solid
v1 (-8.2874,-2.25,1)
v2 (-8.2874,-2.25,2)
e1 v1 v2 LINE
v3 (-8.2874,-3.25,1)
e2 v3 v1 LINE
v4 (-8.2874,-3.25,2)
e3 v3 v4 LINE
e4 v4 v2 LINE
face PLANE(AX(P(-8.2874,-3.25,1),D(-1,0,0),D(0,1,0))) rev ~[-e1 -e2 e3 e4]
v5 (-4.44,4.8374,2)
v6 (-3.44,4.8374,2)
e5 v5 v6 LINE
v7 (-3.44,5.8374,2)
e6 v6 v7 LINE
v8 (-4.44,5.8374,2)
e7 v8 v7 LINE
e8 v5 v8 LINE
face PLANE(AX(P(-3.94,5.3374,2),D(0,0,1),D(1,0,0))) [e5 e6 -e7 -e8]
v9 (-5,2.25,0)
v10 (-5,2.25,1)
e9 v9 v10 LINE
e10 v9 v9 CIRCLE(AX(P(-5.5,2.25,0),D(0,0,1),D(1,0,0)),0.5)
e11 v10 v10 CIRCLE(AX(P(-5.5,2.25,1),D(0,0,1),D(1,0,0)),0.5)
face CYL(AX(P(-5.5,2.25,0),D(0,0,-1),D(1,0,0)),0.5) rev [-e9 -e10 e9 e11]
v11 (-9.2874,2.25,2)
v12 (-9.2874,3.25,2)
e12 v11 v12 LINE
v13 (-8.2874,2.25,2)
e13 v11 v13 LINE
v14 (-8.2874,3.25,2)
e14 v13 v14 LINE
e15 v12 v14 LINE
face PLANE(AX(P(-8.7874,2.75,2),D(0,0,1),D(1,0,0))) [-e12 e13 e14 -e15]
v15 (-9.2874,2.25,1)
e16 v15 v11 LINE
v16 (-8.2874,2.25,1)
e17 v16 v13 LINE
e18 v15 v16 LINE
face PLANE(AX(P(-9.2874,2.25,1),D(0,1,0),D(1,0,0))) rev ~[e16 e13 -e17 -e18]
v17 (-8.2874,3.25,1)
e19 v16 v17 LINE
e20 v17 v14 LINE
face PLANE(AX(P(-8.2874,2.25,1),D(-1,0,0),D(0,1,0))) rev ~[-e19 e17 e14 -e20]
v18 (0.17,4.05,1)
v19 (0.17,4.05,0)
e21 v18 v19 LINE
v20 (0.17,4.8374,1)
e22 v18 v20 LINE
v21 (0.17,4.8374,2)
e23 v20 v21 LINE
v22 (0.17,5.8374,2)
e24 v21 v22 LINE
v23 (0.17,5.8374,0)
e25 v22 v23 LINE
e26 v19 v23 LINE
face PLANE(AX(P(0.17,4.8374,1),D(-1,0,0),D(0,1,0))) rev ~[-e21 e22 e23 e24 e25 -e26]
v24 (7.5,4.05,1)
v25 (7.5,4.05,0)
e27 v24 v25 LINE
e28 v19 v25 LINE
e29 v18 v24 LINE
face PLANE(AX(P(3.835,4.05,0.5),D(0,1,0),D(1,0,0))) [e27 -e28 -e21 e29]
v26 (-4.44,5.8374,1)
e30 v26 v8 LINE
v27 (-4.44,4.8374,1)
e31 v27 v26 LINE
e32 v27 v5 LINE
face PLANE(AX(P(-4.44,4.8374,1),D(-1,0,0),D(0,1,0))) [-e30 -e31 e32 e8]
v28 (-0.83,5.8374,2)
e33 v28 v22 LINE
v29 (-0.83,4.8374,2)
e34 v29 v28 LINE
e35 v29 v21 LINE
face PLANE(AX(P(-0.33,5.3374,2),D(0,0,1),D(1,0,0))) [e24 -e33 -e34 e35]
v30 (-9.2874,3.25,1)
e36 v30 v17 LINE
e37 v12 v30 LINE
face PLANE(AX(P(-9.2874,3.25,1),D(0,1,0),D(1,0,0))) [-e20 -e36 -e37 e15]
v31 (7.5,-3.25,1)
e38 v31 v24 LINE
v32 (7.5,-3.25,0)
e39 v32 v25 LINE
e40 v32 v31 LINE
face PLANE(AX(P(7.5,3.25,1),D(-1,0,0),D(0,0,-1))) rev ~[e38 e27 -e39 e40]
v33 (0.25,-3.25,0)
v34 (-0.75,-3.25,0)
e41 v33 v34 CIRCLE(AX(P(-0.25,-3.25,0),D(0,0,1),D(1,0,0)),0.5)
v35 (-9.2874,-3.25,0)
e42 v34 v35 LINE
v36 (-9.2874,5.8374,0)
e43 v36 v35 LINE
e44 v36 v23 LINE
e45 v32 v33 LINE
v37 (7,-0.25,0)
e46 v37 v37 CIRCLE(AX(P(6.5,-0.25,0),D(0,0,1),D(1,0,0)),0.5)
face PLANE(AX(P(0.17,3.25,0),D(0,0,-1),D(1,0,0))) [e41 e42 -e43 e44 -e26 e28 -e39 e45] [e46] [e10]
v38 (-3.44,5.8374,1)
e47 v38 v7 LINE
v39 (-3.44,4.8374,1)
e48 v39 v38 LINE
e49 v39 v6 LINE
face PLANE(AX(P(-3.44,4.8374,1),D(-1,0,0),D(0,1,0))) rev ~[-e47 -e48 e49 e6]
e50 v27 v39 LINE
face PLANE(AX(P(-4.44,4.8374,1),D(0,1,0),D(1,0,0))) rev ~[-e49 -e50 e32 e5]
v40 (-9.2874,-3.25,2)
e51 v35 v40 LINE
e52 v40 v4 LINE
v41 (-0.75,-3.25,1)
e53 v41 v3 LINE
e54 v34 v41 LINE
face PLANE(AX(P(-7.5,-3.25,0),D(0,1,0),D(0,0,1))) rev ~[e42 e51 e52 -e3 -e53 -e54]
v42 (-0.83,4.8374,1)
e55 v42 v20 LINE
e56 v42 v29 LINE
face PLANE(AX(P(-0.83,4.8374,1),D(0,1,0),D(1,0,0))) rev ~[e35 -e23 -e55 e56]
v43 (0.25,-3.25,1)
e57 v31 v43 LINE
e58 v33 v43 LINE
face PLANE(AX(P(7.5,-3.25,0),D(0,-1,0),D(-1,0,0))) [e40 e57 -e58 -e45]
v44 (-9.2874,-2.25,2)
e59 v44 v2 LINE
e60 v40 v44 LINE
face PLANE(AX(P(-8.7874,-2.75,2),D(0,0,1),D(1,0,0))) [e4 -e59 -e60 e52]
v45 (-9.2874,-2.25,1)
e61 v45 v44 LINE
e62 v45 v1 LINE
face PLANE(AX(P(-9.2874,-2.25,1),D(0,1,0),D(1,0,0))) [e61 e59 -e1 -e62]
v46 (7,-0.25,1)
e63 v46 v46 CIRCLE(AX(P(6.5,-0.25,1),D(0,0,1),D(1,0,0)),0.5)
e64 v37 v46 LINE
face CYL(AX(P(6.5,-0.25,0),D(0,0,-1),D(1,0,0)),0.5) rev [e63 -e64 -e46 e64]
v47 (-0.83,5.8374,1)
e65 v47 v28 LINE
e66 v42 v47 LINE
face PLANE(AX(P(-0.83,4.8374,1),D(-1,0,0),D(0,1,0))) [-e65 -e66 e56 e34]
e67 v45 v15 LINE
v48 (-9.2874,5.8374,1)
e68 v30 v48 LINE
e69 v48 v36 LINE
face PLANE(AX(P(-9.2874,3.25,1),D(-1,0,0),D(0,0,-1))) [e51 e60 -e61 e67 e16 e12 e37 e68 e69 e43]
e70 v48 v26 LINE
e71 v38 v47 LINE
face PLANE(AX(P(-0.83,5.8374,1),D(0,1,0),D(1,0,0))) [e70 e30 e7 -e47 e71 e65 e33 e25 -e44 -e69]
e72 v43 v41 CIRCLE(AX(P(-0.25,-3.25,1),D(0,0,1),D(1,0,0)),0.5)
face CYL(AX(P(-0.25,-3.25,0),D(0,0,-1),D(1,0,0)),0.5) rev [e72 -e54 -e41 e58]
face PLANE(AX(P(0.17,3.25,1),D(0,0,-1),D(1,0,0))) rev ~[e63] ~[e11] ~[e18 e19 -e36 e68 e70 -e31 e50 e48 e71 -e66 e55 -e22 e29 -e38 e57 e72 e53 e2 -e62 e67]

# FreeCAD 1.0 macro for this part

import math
import FreeCAD as App
import Part
import Sketcher

V = App.Vector

doc = App.newDocument("Part")
body = doc.addObject("PartDesign::Body", "Body")

sketch1 = body.newObject("Sketcher::SketchObject", "Sketch")
sketch1.AttachmentSupport = (doc.getObject("XY_Plane"), [""])
sketch1.MapMode = "FlatFace"
sketch1.addGeometry(Part.LineSegment(V(-7.5, -3.25, 0), V(-0.75, -3.25, 0)), False)
sketch1.addGeometry(Part.ArcOfCircle(Part.Circle(V(-0.25, -3.25, 0), V(0, 0, 1), 0.5), math.radians(0), math.radians(180)), False)
sketch1.addGeometry(Part.LineSegment(V(0.25, -3.25, 0), V(7.5, -3.25, 0)), False)
sketch1.addGeometry(Part.LineSegment(V(7.5, -3.25, 0), V(7.5, 3.25, 0)), False)
sketch1.addGeometry(Part.LineSegment(V(7.5, 3.25, 0), V(-7.5, 3.25, 0)), False)
sketch1.addGeometry(Part.LineSegment(V(-7.5, 3.25, 0), V(-7.5, -3.25, 0)), False)
sketch1.addGeometry(Part.Circle(V(6.5, -0.25, 0), V(0, 0, 1), 0.5), False)
sketch1.addGeometry(Part.Circle(V(-5.5, 2.25, 0), V(0, 0, 1), 0.5), False)
sketch1.addConstraint(Sketcher.Constraint("Coincident", 0, 2, 1, 2))
sketch1.addConstraint(Sketcher.Constraint("Coincident", 1, 1, 2, 1))
sketch1.addConstraint(Sketcher.Constraint("Coincident", 2, 2, 3, 1))
sketch1.addConstraint(Sketcher.Constraint("Coincident", 3, 2, 4, 1))
sketch1.addConstraint(Sketcher.Constraint("Coincident", 4, 2, 5, 1))
sketch1.addConstraint(Sketcher.Constraint("Coincident", 5, 2, 0, 1))
sketch1.addConstraint(Sketcher.Constraint("Horizontal", 0))
sketch1.addConstraint(Sketcher.Constraint("Horizontal", 2))
sketch1.addConstraint(Sketcher.Constraint("Vertical", 3))
sketch1.addConstraint(Sketcher.Constraint("Horizontal", 4))
sketch1.addConstraint(Sketcher.Constraint("Vertical", 5))
sketch1.addConstraint(Sketcher.Constraint("Equal", 1, 6))
sketch1.addConstraint(Sketcher.Constraint("Equal", 6, 7))
sketch1.addConstraint(Sketcher.Constraint("Symmetric", 2, 2, 4, 2, -1, 1))
sketch1.addConstraint(Sketcher.Constraint("Horizontal", 1, 3, 0, 2))
sketch1.addConstraint(Sketcher.Constraint("Horizontal", 0, 2, 1, 1))
sketch1.addConstraint(Sketcher.Constraint("Diameter", 6, 1.0))
sketch1.addConstraint(Sketcher.Constraint("DistanceX", 4, 2, 4, 1, 15.0))
sketch1.addConstraint(Sketcher.Constraint("DistanceY", 3, 1, 3, 2, 6.5))
sketch1.addConstraint(Sketcher.Constraint("DistanceY", 1, 3, 6, 3, 3.0))
sketch1.addConstraint(Sketcher.Constraint("DistanceX", 7, 3, 6, 3, 12.0))
sketch1.addConstraint(Sketcher.Constraint("DistanceX", 6, 3, 2, 2, 1.0))
sketch1.addConstraint(Sketcher.Constraint("DistanceY", 7, 3, 4, 2, 1.0))
sketch1.addConstraint(Sketcher.Constraint("DistanceX", 0, 1, 0, 2, 6.75))
pad1 = body.newObject("PartDesign::Pad", "Pad")
pad1.Profile = sketch1
pad1.Length = 1

sketch2 = body.newObject("Sketcher::SketchObject", "Sketch001")
sketch2.AttachmentSupport = (doc.getObject("YZ_Plane"), [""])
sketch2.MapMode = "FlatFace"
sketch2.AttachmentOffset = App.Placement(V(0, 0, -7.5), App.Rotation())
sketch2.addGeometry(Part.LineSegment(V(3.25, 0, 0), V(-3.25, 0, 0)), False)
sketch2.addGeometry(Part.LineSegment(V(-3.25, 0, 0), V(-3.25, 1, 0)), False)
sketch2.addGeometry(Part.LineSegment(V(-3.25, 1, 0), V(3.25, 1, 0)), False)
sketch2.addGeometry(Part.LineSegment(V(3.25, 1, 0), V(3.25, 0, 0)), False)
sketch2.addConstraint(Sketcher.Constraint("Coincident", 0, 2, 1, 1))
sketch2.addConstraint(Sketcher.Constraint("Coincident", 1, 2, 2, 1))
sketch2.addConstraint(Sketcher.Constraint("Coincident", 2, 2, 3, 1))
sketch2.addConstraint(Sketcher.Constraint("Coincident", 3, 2, 0, 1))
sketch2.addConstraint(Sketcher.Constraint("Horizontal", 0))
sketch2.addConstraint(Sketcher.Constraint("Vertical", 1))
sketch2.addConstraint(Sketcher.Constraint("Horizontal", 2))
sketch2.addConstraint(Sketcher.Constraint("Vertical", 3))
sketch2.addConstraint(Sketcher.Constraint("Symmetric", 0, 2, 3, 2, -1, 1))
sketch2.addConstraint(Sketcher.Constraint("DistanceY", 1, 1, 1, 2, 1.0))
sketch2.addConstraint(Sketcher.Constraint("DistanceX", 0, 2, 0, 1, 6.5))
pad2 = body.newObject("PartDesign::Pad", "Pad001")
pad2.Profile = sketch2
pad2.Length = 1.7874
pad2.Reversed = True

sketch3 = body.newObject("Sketcher::SketchObject", "Sketch002")
sketch3.AttachmentSupport = (doc.getObject("XY_Plane"), [""])
sketch3.MapMode = "FlatFace"
sketch3.AttachmentOffset = App.Placement(V(0, 0, 1), App.Rotation())
sketch3.addGeometry(Part.LineSegment(V(-9.2874, 3.25, 0), V(-9.2874, 2.25, 0)), False)
sketch3.addGeometry(Part.LineSegment(V(-9.2874, 2.25, 0), V(-8.2874, 2.25, 0)), False)
sketch3.addGeometry(Part.LineSegment(V(-8.2874, 2.25, 0), V(-8.2874, 3.25, 0)), False)
sketch3.addGeometry(Part.LineSegment(V(-8.2874, 3.25, 0), V(-9.2874, 3.25, 0)), False)
sketch3.addGeometry(Part.LineSegment(V(-9.2874, -2.25, 0), V(-9.2874, -3.25, 0)), False)
sketch3.addGeometry(Part.LineSegment(V(-9.2874, -3.25, 0), V(-8.2874, -3.25, 0)), False)
sketch3.addGeometry(Part.LineSegment(V(-8.2874, -3.25, 0), V(-8.2874, -2.25, 0)), False)
sketch3.addGeometry(Part.LineSegment(V(-8.2874, -2.25, 0), V(-9.2874, -2.25, 0)), False)
sketch3.addConstraint(Sketcher.Constraint("Coincident", 0, 2, 1, 1))
sketch3.addConstraint(Sketcher.Constraint("Coincident", 1, 2, 2, 1))
sketch3.addConstraint(Sketcher.Constraint("Coincident", 2, 2, 3, 1))
sketch3.addConstraint(Sketcher.Constraint("Coincident", 3, 2, 0, 1))
sketch3.addConstraint(Sketcher.Constraint("Coincident", 4, 2, 5, 1))
sketch3.addConstraint(Sketcher.Constraint("Coincident", 5, 2, 6, 1))
sketch3.addConstraint(Sketcher.Constraint("Coincident", 6, 2, 7, 1))
sketch3.addConstraint(Sketcher.Constraint("Coincident", 7, 2, 4, 1))
sketch3.addConstraint(Sketcher.Constraint("Vertical", 0))
sketch3.addConstraint(Sketcher.Constraint("Horizontal", 1))
sketch3.addConstraint(Sketcher.Constraint("Vertical", 2))
sketch3.addConstraint(Sketcher.Constraint("Horizontal", 3))
sketch3.addConstraint(Sketcher.Constraint("Vertical", 4))
sketch3.addConstraint(Sketcher.Constraint("Horizontal", 5))
sketch3.addConstraint(Sketcher.Constraint("Vertical", 6))
sketch3.addConstraint(Sketcher.Constraint("Horizontal", 7))
sketch3.addConstraint(Sketcher.Constraint("Symmetric", 3, 2, 4, 2, -1))
sketch3.addConstraint(Sketcher.Constraint("Symmetric", 1, 2, 6, 2, -1))
sketch3.addConstraint(Sketcher.Constraint("Equal", 7, 0))
sketch3.addConstraint(Sketcher.Constraint("DistanceX", 1, 1, 1, 2, 1.0))
sketch3.addConstraint(Sketcher.Constraint("DistanceY", 4, 2, 0, 2, 5.5))
sketch3.addConstraint(Sketcher.Constraint("DistanceX", 0, 2, -1, 1, 9.2874))
pad3 = body.newObject("PartDesign::Pad", "Pad002")
pad3.Profile = sketch3
pad3.Length = 1

sketch4 = body.newObject("Sketcher::SketchObject", "Sketch003")
sketch4.AttachmentSupport = (doc.getObject("XZ_Plane"), [""])
sketch4.MapMode = "FlatFace"
sketch4.AttachmentOffset = App.Placement(V(0, 0, -3.25), App.Rotation())
sketch4.addGeometry(Part.LineSegment(V(-9.2874, 0, 0), V(-9.2874, 1, 0)), False)
sketch4.addGeometry(Part.LineSegment(V(-9.2874, 1, 0), V(0.17, 1, 0)), False)
sketch4.addGeometry(Part.LineSegment(V(0.17, 1, 0), V(0.17, 0, 0)), False)
sketch4.addGeometry(Part.LineSegment(V(0.17, 0, 0), V(-9.2874, 0, 0)), False)
sketch4.addConstraint(Sketcher.Constraint("Coincident", 0, 2, 1, 1))
sketch4.addConstraint(Sketcher.Constraint("Coincident", 1, 2, 2, 1))
sketch4.addConstraint(Sketcher.Constraint("Coincident", 2, 2, 3, 1))
sketch4.addConstraint(Sketcher.Constraint("Coincident", 3, 2, 0, 1))
sketch4.addConstraint(Sketcher.Constraint("Vertical", 0))
sketch4.addConstraint(Sketcher.Constraint("Horizontal", 1))
sketch4.addConstraint(Sketcher.Constraint("Vertical", 2))
sketch4.addConstraint(Sketcher.Constraint("Horizontal", 3))
sketch4.addConstraint(Sketcher.Constraint("PointOnObject", 2, 2, -1))
sketch4.addConstraint(Sketcher.Constraint("DistanceY", 0, 1, 0, 2, 1.0))
sketch4.addConstraint(Sketcher.Constraint("DistanceX", -1, 1, 1, 2, 0.17))
sketch4.addConstraint(Sketcher.Constraint("DistanceX", 1, 1, 1, 2, 9.4574))
pad4 = body.newObject("PartDesign::Pad", "Pad003")
pad4.Profile = sketch4
pad4.Length = 2.5874
pad4.Reversed = True

sketch5 = body.newObject("Sketcher::SketchObject", "Sketch004")
sketch5.AttachmentSupport = (doc.getObject("XY_Plane"), [""])
sketch5.MapMode = "FlatFace"
sketch5.AttachmentOffset = App.Placement(V(0, 0, 1), App.Rotation())
sketch5.addGeometry(Part.LineSegment(V(-0.83, 5.8374, 0), V(-0.83, 4.8374, 0)), False)
sketch5.addGeometry(Part.LineSegment(V(-0.83, 4.8374, 0), V(0.17, 4.8374, 0)), False)
sketch5.addGeometry(Part.LineSegment(V(0.17, 4.8374, 0), V(0.17, 5.8374, 0)), False)
sketch5.addGeometry(Part.LineSegment(V(0.17, 5.8374, 0), V(-0.83, 5.8374, 0)), False)
sketch5.addGeometry(Part.LineSegment(V(-4.44, 5.8374, 0), V(-4.44, 4.8374, 0)), False)
sketch5.addGeometry(Part.LineSegment(V(-4.44, 4.8374, 0), V(-3.44, 4.8374, 0)), False)
sketch5.addGeometry(Part.LineSegment(V(-3.44, 4.8374, 0), V(-3.44, 5.8374, 0)), False)
sketch5.addGeometry(Part.LineSegment(V(-3.44, 5.8374, 0), V(-4.44, 5.8374, 0)), False)
sketch5.addConstraint(Sketcher.Constraint("Coincident", 0, 2, 1, 1))
sketch5.addConstraint(Sketcher.Constraint("Coincident", 1, 2, 2, 1))
sketch5.addConstraint(Sketcher.Constraint("Coincident", 2, 2, 3, 1))
sketch5.addConstraint(Sketcher.Constraint("Coincident", 3, 2, 0, 1))
sketch5.addConstraint(Sketcher.Constraint("Coincident", 4, 2, 5, 1))
sketch5.addConstraint(Sketcher.Constraint("Coincident", 5, 2, 6, 1))
sketch5.addConstraint(Sketcher.Constraint("Coincident", 6, 2, 7, 1))
sketch5.addConstraint(Sketcher.Constraint("Coincident", 7, 2, 4, 1))
sketch5.addConstraint(Sketcher.Constraint("Vertical", 0))
sketch5.addConstraint(Sketcher.Constraint("Horizontal", 1))
sketch5.addConstraint(Sketcher.Constraint("Vertical", 2))
sketch5.addConstraint(Sketcher.Constraint("Horizontal", 3))
sketch5.addConstraint(Sketcher.Constraint("Vertical", 4))
sketch5.addConstraint(Sketcher.Constraint("Horizontal", 5))
sketch5.addConstraint(Sketcher.Constraint("Vertical", 6))
sketch5.addConstraint(Sketcher.Constraint("Horizontal", 7))
sketch5.addConstraint(Sketcher.Constraint("Horizontal", 1, 2, 4, 2))
sketch5.addConstraint(Sketcher.Constraint("Horizontal", 3, 2, 6, 2))
sketch5.addConstraint(Sketcher.Constraint("Equal", 3, 5))
sketch5.addConstraint(Sketcher.Constraint("Equal", 7, 0))
sketch5.addConstraint(Sketcher.Constraint("DistanceX", 1, 1, 1, 2, 1.0))
sketch5.addConstraint(Sketcher.Constraint("DistanceX", 0, 2, -1, 1, 0.83))
sketch5.addConstraint(Sketcher.Constraint("DistanceX", 4, 2, -1, 1, 4.44))
sketch5.addConstraint(Sketcher.Constraint("DistanceY", -1, 1, 0, 2, 4.8374))
pad5 = body.newObject("PartDesign::Pad", "Pad004")
pad5.Profile = sketch5
pad5.Length = 1

sketch6 = body.newObject("Sketcher::SketchObject", "Sketch005")
sketch6.AttachmentSupport = (doc.getObject("XZ_Plane"), [""])
sketch6.MapMode = "FlatFace"
sketch6.AttachmentOffset = App.Placement(V(0, 0, -3.25), App.Rotation())
sketch6.addGeometry(Part.LineSegment(V(0.17, 0, 0), V(0.17, 1, 0)), False)
sketch6.addGeometry(Part.LineSegment(V(0.17, 1, 0), V(7.5, 1, 0)), False)
sketch6.addGeometry(Part.LineSegment(V(7.5, 1, 0), V(7.5, 0, 0)), False)
sketch6.addGeometry(Part.LineSegment(V(7.5, 0, 0), V(0.17, 0, 0)), False)
sketch6.addConstraint(Sketcher.Constraint("Coincident", 0, 2, 1, 1))
sketch6.addConstraint(Sketcher.Constraint("Coincident", 1, 2, 2, 1))
sketch6.addConstraint(Sketcher.Constraint("Coincident", 2, 2, 3, 1))
sketch6.addConstraint(Sketcher.Constraint("Coincident", 3, 2, 0, 1))
sketch6.addConstraint(Sketcher.Constraint("Vertical", 0))
sketch6.addConstraint(Sketcher.Constraint("Horizontal", 1))
sketch6.addConstraint(Sketcher.Constraint("Vertical", 2))
sketch6.addConstraint(Sketcher.Constraint("Horizontal", 3))
sketch6.addConstraint(Sketcher.Constraint("PointOnObject", 2, 2, -1))
sketch6.addConstraint(Sketcher.Constraint("DistanceY", 0, 1, 0, 2, 1.0))
sketch6.addConstraint(Sketcher.Constraint("DistanceX", 1, 1, 1, 2, 7.33))
sketch6.addConstraint(Sketcher.Constraint("DistanceX", -1, 1, 1, 2, 7.5))
pad6 = body.newObject("PartDesign::Pad", "Pad005")
pad6.Profile = sketch6
pad6.Length = 0.8
pad6.Reversed = True

doc.recompute()
